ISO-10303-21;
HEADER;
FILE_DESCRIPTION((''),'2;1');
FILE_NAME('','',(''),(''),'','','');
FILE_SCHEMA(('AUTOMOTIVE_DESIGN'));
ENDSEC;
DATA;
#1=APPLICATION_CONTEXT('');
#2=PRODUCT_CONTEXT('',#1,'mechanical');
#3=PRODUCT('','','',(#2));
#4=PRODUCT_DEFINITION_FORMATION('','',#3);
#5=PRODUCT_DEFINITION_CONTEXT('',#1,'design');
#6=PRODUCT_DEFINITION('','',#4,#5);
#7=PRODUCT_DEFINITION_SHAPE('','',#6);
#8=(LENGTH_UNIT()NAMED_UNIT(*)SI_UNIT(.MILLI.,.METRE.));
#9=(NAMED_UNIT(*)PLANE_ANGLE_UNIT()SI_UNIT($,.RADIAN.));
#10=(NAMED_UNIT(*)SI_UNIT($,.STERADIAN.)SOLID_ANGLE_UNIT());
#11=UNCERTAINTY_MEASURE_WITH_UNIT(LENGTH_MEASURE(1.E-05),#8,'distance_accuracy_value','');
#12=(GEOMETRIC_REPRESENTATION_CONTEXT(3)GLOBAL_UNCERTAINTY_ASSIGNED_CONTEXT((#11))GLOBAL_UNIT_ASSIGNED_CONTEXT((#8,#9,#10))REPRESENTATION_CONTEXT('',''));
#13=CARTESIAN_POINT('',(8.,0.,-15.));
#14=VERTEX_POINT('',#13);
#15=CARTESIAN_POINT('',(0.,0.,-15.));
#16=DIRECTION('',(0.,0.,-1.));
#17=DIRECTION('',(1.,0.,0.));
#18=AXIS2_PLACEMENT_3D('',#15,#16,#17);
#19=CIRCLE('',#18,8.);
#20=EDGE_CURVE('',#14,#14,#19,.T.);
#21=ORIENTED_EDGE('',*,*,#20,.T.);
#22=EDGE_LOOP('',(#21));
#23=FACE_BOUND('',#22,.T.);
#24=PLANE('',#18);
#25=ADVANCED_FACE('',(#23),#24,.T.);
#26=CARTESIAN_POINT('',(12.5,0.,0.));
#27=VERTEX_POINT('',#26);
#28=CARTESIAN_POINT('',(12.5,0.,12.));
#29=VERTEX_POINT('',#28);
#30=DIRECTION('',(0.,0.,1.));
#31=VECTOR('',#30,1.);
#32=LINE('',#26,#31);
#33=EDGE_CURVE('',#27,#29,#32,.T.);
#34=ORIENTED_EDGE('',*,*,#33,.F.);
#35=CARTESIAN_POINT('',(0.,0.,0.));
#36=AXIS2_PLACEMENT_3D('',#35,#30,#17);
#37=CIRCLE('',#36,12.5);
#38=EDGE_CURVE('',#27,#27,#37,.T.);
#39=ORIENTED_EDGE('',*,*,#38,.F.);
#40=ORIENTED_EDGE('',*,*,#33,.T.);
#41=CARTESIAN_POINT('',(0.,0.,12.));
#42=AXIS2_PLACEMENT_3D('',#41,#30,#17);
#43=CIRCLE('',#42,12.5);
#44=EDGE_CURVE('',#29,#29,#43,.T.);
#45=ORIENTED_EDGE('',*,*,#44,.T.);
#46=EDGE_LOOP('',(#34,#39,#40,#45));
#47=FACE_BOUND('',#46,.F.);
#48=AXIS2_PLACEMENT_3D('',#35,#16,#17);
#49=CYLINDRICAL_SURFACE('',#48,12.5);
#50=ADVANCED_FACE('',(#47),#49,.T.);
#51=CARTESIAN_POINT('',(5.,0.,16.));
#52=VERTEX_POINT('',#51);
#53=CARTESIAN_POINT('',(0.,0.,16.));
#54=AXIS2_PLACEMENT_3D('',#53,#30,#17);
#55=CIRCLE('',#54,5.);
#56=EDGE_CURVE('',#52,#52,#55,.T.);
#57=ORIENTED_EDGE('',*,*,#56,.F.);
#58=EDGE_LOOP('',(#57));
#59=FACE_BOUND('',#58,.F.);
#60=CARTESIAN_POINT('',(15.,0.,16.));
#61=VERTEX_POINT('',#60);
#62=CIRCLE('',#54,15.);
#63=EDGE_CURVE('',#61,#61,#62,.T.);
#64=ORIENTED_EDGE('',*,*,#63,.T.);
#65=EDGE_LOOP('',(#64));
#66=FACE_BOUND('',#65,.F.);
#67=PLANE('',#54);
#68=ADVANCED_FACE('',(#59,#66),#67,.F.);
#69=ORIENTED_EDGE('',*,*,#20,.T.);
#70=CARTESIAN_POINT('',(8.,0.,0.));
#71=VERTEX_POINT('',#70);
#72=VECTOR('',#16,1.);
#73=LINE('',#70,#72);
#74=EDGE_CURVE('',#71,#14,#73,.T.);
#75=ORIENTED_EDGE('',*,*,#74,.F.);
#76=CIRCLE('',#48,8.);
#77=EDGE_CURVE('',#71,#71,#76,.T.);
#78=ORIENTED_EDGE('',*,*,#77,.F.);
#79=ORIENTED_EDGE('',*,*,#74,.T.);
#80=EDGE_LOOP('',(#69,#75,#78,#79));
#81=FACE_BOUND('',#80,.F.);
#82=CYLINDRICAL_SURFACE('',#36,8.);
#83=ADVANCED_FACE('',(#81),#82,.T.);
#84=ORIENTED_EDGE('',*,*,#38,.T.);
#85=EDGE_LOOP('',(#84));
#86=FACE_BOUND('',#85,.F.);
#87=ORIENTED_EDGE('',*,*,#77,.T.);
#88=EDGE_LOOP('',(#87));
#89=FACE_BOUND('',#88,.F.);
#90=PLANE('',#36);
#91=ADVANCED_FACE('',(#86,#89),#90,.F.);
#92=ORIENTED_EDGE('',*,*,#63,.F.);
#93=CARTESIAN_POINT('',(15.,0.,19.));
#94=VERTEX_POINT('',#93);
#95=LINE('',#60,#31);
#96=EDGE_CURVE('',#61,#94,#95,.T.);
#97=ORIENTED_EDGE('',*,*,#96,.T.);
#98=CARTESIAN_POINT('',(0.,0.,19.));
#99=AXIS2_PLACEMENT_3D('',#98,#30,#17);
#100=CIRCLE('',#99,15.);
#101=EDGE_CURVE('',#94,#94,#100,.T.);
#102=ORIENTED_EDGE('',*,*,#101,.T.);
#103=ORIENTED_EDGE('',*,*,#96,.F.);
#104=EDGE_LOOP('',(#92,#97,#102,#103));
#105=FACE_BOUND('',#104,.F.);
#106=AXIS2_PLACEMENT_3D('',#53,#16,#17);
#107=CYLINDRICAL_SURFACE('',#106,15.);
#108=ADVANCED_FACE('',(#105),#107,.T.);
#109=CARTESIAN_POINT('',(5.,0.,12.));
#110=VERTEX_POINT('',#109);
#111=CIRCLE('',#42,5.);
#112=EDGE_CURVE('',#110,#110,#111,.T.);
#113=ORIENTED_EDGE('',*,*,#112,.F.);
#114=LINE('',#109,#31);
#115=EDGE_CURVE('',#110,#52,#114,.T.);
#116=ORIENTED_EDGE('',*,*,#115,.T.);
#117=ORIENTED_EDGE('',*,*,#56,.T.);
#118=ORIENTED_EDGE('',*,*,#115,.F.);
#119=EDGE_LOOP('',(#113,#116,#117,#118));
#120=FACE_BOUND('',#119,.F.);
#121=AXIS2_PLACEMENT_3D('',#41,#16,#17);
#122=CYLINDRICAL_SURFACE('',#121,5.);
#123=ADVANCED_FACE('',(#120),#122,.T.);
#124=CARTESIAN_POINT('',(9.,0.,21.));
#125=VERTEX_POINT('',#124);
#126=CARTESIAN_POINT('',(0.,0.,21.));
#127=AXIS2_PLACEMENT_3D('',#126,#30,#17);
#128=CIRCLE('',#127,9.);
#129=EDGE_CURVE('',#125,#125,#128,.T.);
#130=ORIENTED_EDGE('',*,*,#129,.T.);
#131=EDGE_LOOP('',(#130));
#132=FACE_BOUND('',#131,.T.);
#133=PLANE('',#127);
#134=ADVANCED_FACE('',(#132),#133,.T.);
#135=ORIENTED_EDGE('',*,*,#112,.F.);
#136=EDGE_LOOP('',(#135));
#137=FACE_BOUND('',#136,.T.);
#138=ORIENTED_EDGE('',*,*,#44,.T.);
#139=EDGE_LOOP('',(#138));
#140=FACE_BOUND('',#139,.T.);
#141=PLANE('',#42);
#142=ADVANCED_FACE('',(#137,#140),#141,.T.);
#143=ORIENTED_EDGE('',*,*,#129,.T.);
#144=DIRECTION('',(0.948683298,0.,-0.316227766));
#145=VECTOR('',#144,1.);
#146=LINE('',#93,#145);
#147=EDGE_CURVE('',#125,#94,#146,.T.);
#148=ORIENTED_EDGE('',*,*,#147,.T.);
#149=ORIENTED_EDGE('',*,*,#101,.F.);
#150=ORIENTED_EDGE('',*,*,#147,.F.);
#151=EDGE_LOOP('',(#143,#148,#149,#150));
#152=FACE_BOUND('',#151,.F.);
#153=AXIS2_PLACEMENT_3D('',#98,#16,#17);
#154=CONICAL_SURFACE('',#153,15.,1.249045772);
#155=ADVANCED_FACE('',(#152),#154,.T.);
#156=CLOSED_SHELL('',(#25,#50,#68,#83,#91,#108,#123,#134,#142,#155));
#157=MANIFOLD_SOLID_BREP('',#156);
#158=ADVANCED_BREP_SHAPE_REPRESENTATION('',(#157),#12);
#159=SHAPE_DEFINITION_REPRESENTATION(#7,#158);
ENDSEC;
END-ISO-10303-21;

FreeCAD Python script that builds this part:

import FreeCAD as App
import Part
import Sketcher
from FreeCAD import Vector
Q = App.Units.Quantity


def edges_at(feature, points):
    """Names of the edges that pass closest to the given points."""
    edges = feature.Shape.Edges
    near = lambda p: min(range(len(edges)), key=lambda i: edges[i].distToShape(Part.Vertex(*p))[0])
    return sorted({f"Edge{near(p) + 1}" for p in points})

doc = App.newDocument("Part")
body = doc.addObject("PartDesign::Body", "Body")

# Sketch on XY plane
sketch1 = body.newObject("Sketcher::SketchObject", "Sketch")
sketch1.AttachmentSupport = (doc.getObject("XY_Plane"), [""])
sketch1.MapMode = "FlatFace"
sketch1.addGeometry(Part.Circle(Vector(0, 0, 0), Vector(0, 0, 1), 12), False)
sketch1.addConstraint(Sketcher.Constraint("Coincident", 0, 3, -1, 1))
sketch1.addConstraint(Sketcher.Constraint("Diameter", 0, Q("25 mm")))
pad1 = body.newObject("PartDesign::Pad", "Pad")
pad1.Profile = sketch1
pad1.Length = 12

# Sketch on XY plane
sketch2 = body.newObject("Sketcher::SketchObject", "Sketch001")
sketch2.AttachmentSupport = (doc.getObject("XY_Plane"), [""])
sketch2.MapMode = "FlatFace"
sketch2.addGeometry(Part.Circle(Vector(0, 0, 0), Vector(0, 0, 1), 8), False)
sketch2.addConstraint(Sketcher.Constraint("Coincident", 0, 3, -1, 1))
sketch2.addConstraint(Sketcher.Constraint("Diameter", 0, Q("16 mm")))
pad2 = body.newObject("PartDesign::Pad", "Pad001")
pad2.Profile = sketch2
pad2.Length = 15
pad2.Reversed = True

# Sketch on XY plane
sketch3 = body.newObject("Sketcher::SketchObject", "Sketch002")
sketch3.AttachmentSupport = (doc.getObject("XY_Plane"), [""])
sketch3.MapMode = "FlatFace"
sketch3.AttachmentOffset = App.Placement(Vector(0, 0, 12), App.Rotation())
sketch3.addGeometry(Part.Circle(Vector(0, 0, 0), Vector(0, 0, 1), 5), False)
sketch3.addConstraint(Sketcher.Constraint("Coincident", 0, 3, -1, 1))
sketch3.addConstraint(Sketcher.Constraint("Diameter", 0, Q("10 mm")))
pad3 = body.newObject("PartDesign::Pad", "Pad002")
pad3.Profile = sketch3
pad3.Length = 4

# Sketch on XY plane
sketch4 = body.newObject("Sketcher::SketchObject", "Sketch003")
sketch4.AttachmentSupport = (doc.getObject("XY_Plane"), [""])
sketch4.MapMode = "FlatFace"
sketch4.AttachmentOffset = App.Placement(Vector(0, 0, 16), App.Rotation())
sketch4.addGeometry(Part.Circle(Vector(0, 0, 0), Vector(0, 0, 1), 15), False)
sketch4.addConstraint(Sketcher.Constraint("Coincident", 0, 3, -1, 1))
sketch4.addConstraint(Sketcher.Constraint("Diameter", 0, Q("30 mm")))
pad4 = body.newObject("PartDesign::Pad", "Pad003")
pad4.Profile = sketch4
pad4.Length = 5
doc.recompute()

chamfer = body.newObject("PartDesign::Chamfer", "Chamfer")
chamfer.Base = (pad4, edges_at(pad4, [(-15, 0, 21)]))
chamfer.ChamferType = "Two distances"
chamfer.Size = 6
chamfer.Size2 = 2
chamfer.FlipDirection = True

doc.recompute()
